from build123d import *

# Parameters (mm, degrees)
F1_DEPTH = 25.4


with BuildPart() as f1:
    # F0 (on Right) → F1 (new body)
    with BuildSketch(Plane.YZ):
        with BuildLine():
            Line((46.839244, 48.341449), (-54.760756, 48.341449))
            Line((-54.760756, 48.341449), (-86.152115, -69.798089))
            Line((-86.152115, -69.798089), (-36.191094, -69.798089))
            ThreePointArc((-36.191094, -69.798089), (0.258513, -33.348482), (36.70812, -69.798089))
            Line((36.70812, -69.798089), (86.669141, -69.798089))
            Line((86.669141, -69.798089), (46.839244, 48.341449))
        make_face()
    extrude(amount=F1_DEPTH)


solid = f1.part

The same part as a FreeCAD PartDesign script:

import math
import FreeCAD as App
import Part
import Sketcher
from FreeCAD import Vector
Q = App.Units.Quantity

doc = App.newDocument("Part")
body = doc.addObject("PartDesign::Body", "Body")

# Sketch on YZ plane
sketch1 = body.newObject("Sketcher::SketchObject", "Sketch")
sketch1.AttachmentSupport = (doc.getObject("YZ_Plane"), [""])
sketch1.MapMode = "FlatFace"
sketch1.addGeometry([
    Part.LineSegment(Vector(46.839244, 48.341449, 0), Vector(-54.760756, 48.341449, 0)),  # 0
    Part.LineSegment(Vector(-54.760756, 48.341449, 0), Vector(-86.152115, -69.798089, 0)),  # 1
    Part.LineSegment(Vector(-86.152115, -69.798089, 0), Vector(-36.191094, -69.798089, 0)),  # 2
    Part.ArcOfCircle(Part.Circle(Vector(0.258513, -69.798089, 0), Vector(0, 0, 1), 36.449607), math.radians(0), math.radians(180)),  # 3
    Part.LineSegment(Vector(36.70812, -69.798089, 0), Vector(86.669141, -69.798089, 0)),  # 4
    Part.LineSegment(Vector(86.669141, -69.798089, 0), Vector(46.839244, 48.341449, 0)),  # 5
], False)
sketch1.addConstraint([
    Sketcher.Constraint("Coincident", 0, 2, 1, 1),
    Sketcher.Constraint("Coincident", 1, 2, 2, 1),
    Sketcher.Constraint("Coincident", 2, 2, 3, 2),
    Sketcher.Constraint("Coincident", 3, 1, 4, 1),
    Sketcher.Constraint("Coincident", 4, 2, 5, 1),
    Sketcher.Constraint("Coincident", 5, 2, 0, 1),
    Sketcher.Constraint("Horizontal", 0),
    Sketcher.Constraint("Horizontal", 2),
    Sketcher.Constraint("Horizontal", 4),
    Sketcher.Constraint("Horizontal", 3, 3, 1, 2),
    Sketcher.Constraint("Horizontal", 2, 2, 3, 1),
    Sketcher.Constraint("Equal", 2, 4),
    Sketcher.Constraint("DistanceX", 0, 2, 0, 1, Q("4 in")),
    Sketcher.Constraint("Radius", 3, Q("36.449607 mm")),
    Sketcher.Constraint("DistanceX", 2, 1, 2, 2, Q("49.961021 mm")),
    Sketcher.Constraint("Distance", 1, Q("122.238978 mm")),
    Sketcher.Constraint("DistanceY", 3, 3, -1, 1, Q("69.798089 mm")),
    Sketcher.Constraint("DistanceY", -1, 1, 0, 2, Q("48.341449 mm")),
    Sketcher.Constraint("DistanceX", -1, 1, 3, 1, Q("36.70812 mm")),
])
pad1 = body.newObject("PartDesign::Pad", "Pad")
pad1.Profile = sketch1
pad1.Length = Q("1 in")

doc.recompute()
